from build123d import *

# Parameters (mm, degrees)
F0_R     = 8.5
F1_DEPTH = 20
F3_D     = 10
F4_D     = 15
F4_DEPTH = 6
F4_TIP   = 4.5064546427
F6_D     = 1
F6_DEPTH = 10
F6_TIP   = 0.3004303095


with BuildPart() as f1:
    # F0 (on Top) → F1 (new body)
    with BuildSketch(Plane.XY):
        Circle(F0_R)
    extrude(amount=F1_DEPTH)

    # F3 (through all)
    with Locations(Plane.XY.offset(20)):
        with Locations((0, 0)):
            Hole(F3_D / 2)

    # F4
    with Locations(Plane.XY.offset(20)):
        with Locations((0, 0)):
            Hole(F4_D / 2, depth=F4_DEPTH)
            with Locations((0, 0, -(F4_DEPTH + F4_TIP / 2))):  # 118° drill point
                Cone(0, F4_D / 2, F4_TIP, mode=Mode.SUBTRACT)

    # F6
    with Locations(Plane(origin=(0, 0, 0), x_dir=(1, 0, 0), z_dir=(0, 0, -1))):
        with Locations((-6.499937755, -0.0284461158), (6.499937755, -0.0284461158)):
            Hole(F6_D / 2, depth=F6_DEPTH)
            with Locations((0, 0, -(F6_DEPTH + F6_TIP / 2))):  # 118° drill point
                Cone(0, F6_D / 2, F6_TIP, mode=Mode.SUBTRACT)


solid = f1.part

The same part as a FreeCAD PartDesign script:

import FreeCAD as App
import Part
import Sketcher

V = App.Vector
Q = App.Units.Quantity

doc = App.newDocument("Part")
body = doc.addObject("PartDesign::Body", "Body")

sketch1 = body.newObject("Sketcher::SketchObject", "Sketch")
sketch1.AttachmentSupport = (doc.getObject("XY_Plane"), [""])
sketch1.MapMode = "FlatFace"
sketch1.addGeometry(Part.Circle(V(0, 0, 0), V(0, 0, 1), 8.5), False)
sketch1.addConstraint([
    Sketcher.Constraint("Coincident", 0, 3, -1, 1),
    Sketcher.Constraint("Diameter", 0, Q("17 mm")),
])
pad1 = body.newObject("PartDesign::Pad", "Pad")
pad1.Profile = sketch1
pad1.Length = 20

sketch2 = body.newObject("Sketcher::SketchObject", "Sketch001")
sketch2.AttachmentSupport = (doc.getObject("XY_Plane"), [""])
sketch2.MapMode = "FlatFace"
sketch2.AttachmentOffset = App.Placement(V(0, 0, 20), App.Rotation())
sketch2.addGeometry(Part.Circle(V(0, 0, 0), V(0, 0, 1), 5), False)
sketch2.addConstraint([
    Sketcher.Constraint("Coincident", 0, 3, -1, 1),
    Sketcher.Constraint("Diameter", 0, Q("10 mm")),
])
doc.recompute()
hole = body.newObject("PartDesign::Hole", "Hole")
hole.Profile = sketch2
hole.ThreadType = "None"
hole.Diameter = 10
hole.DepthType = "ThroughAll"

sketch3 = body.newObject("Sketcher::SketchObject", "Sketch002")
sketch3.AttachmentSupport = (doc.getObject("XY_Plane"), [""])
sketch3.MapMode = "FlatFace"
sketch3.AttachmentOffset = App.Placement(V(0, 0, 20), App.Rotation())
sketch3.addGeometry(Part.Circle(V(0, 0, 0), V(0, 0, 1), 7.5), False)
sketch3.addConstraint([
    Sketcher.Constraint("Coincident", 0, 3, -1, 1),
    Sketcher.Constraint("Diameter", 0, Q("15 mm")),
])
doc.recompute()
hole2 = body.newObject("PartDesign::Hole", "Hole001")
hole2.Profile = sketch3
hole2.ThreadType = "None"
hole2.Diameter = 15
hole2.DepthType = "Dimension"
hole2.Depth = 6
hole2.DrillPoint = "Angled"
hole2.DrillPointAngle = 118

sketch4 = body.newObject("Sketcher::SketchObject", "Sketch003")
sketch4.AttachmentSupport = (doc.getObject("XY_Plane"), [""])
sketch4.MapMode = "FlatFace"
sketch4.addGeometry([
    Part.Circle(V(-6.499938, 0.028446, 0), V(0, 0, 1), 0.5),
    Part.Circle(V(6.499938, 0.028446, 0), V(0, 0, 1), 0.5),
], False)
sketch4.addConstraint([
    Sketcher.Constraint("Equal", 0, 1),
    Sketcher.Constraint("Symmetric", 0, 3, 1, 3, -2),
    Sketcher.Constraint("Diameter", 0, Q("1 mm")),
    Sketcher.Constraint("DistanceX", 0, 3, -1, 1, Q("6.499938 mm")),
    Sketcher.Constraint("DistanceY", -1, 1, 0, 3, Q("0.028446 mm")),
])
doc.recompute()
hole3 = body.newObject("PartDesign::Hole", "Hole002")
hole3.Profile = sketch4
hole3.ThreadType = "None"
hole3.Diameter = 1
hole3.DepthType = "Dimension"
hole3.Depth = 10
hole3.DrillPoint = "Angled"
hole3.DrillPointAngle = 118
hole3.Reversed = True

doc.recompute()
